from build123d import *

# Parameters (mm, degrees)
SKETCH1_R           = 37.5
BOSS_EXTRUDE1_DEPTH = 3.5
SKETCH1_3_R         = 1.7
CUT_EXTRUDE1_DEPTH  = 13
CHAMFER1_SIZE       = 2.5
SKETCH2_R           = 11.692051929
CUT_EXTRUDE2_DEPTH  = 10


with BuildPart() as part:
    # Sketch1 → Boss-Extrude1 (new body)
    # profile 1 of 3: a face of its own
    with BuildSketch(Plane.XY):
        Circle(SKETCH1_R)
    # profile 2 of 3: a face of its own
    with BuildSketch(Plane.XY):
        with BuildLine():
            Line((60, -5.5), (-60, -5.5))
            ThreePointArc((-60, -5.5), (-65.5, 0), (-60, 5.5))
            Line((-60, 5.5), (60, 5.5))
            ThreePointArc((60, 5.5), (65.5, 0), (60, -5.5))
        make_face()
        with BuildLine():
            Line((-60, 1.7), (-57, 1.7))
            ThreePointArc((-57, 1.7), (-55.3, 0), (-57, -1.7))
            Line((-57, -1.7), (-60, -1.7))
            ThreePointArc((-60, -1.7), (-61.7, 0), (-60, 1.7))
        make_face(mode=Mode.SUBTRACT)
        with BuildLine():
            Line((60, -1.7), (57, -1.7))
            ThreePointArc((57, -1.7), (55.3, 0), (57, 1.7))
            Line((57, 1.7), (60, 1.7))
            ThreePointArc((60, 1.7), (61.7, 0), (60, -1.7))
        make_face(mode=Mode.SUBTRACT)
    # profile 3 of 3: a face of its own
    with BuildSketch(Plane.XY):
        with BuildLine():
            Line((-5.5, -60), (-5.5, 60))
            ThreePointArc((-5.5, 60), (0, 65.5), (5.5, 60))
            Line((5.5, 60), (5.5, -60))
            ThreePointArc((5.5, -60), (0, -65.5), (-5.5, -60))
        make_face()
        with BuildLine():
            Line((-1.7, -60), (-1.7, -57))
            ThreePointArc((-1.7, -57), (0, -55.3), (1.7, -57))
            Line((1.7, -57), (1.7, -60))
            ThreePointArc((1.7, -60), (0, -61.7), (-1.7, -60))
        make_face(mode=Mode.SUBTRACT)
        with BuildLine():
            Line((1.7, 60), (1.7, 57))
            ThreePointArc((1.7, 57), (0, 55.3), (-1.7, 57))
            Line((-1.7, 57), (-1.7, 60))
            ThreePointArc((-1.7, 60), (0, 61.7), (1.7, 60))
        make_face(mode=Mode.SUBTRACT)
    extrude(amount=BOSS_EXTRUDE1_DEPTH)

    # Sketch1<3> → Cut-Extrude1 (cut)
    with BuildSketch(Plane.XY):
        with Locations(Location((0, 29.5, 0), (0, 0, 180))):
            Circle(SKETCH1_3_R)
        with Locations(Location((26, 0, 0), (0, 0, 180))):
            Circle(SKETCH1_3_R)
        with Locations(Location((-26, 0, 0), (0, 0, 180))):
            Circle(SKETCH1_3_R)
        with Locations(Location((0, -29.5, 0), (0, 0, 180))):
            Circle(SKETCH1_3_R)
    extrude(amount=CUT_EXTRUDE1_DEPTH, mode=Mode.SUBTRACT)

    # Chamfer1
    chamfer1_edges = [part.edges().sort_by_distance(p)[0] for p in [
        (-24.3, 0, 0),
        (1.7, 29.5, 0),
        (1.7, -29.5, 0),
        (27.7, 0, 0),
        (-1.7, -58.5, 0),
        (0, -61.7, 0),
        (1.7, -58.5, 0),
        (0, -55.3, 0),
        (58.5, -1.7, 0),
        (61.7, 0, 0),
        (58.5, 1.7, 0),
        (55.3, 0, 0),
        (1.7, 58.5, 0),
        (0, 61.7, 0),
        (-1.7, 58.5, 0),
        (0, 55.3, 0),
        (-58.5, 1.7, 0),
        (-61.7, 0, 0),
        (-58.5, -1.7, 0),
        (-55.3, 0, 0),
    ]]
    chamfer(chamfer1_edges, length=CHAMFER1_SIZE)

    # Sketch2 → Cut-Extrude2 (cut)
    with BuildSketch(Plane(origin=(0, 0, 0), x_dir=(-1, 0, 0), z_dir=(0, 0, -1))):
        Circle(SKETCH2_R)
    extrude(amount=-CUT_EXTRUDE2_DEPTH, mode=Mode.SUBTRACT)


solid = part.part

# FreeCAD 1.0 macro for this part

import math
import FreeCAD as App
import Part
import Sketcher

V = App.Vector


def edges_at(feature, points):
    """Names of the edges that pass closest to the given points."""
    edges = feature.Shape.Edges
    near = lambda p: min(range(len(edges)), key=lambda i: edges[i].distToShape(Part.Vertex(*p))[0])
    return sorted({f"Edge{near(p) + 1}" for p in points})

doc = App.newDocument("Part")
body = doc.addObject("PartDesign::Body", "Body")

# Sketch on XY plane
sketch1 = body.newObject("Sketcher::SketchObject", "Sketch")
sketch1.AttachmentSupport = (doc.getObject("XY_Plane"), [""])
sketch1.MapMode = "FlatFace"
sketch1.addGeometry([
    Part.ArcOfCircle(Part.Circle(V(60, 0, 0), V(0, 0, 1), 5.5), math.radians(-90), math.radians(90)),  # 0
    Part.LineSegment(V(60, 5.5, 0), V(37.094474, 5.5, 0)),  # 1
    Part.ArcOfCircle(Part.Circle(V(0, 0, 0), V(0, 0, 1), 37.5), math.radians(8.433804), math.radians(81.566196)),  # 2
    Part.LineSegment(V(5.5, 37.094474, 0), V(5.5, 60, 0)),  # 3
    Part.ArcOfCircle(Part.Circle(V(0, 60, 0), V(0, 0, 1), 5.5), math.radians(0), math.radians(180)),  # 4
    Part.LineSegment(V(-5.5, 60, 0), V(-5.5, 37.094474, 0)),  # 5
    Part.ArcOfCircle(Part.Circle(V(0, 0, 0), V(0, 0, 1), 37.5), math.radians(98.433804), math.radians(171.566196)),  # 6
    Part.LineSegment(V(-37.094474, 5.5, 0), V(-60, 5.5, 0)),  # 7
    Part.ArcOfCircle(Part.Circle(V(-60, 0, 0), V(0, 0, 1), 5.5), math.radians(90), math.radians(270)),  # 8
    Part.LineSegment(V(-60, -5.5, 0), V(-37.094474, -5.5, 0)),  # 9
    Part.ArcOfCircle(Part.Circle(V(0, 0, 0), V(0, 0, 1), 37.5), math.radians(-171.566196), math.radians(-98.433804)),  # 10
    Part.LineSegment(V(-5.5, -37.094474, 0), V(-5.5, -60, 0)),  # 11
    Part.ArcOfCircle(Part.Circle(V(0, -60, 0), V(0, 0, 1), 5.5), math.radians(180), math.radians(360)),  # 12
    Part.LineSegment(V(5.5, -60, 0), V(5.5, -37.094474, 0)),  # 13
    Part.ArcOfCircle(Part.Circle(V(0, 0, 0), V(0, 0, 1), 37.5), math.radians(-81.566196), math.radians(-8.433804)),  # 14
    Part.LineSegment(V(37.094474, -5.5, 0), V(60, -5.5, 0)),  # 15
    Part.ArcOfCircle(Part.Circle(V(57, 0, 0), V(0, 0, 1), 1.7), math.radians(90), math.radians(270)),  # 16
    Part.LineSegment(V(57, 1.7, 0), V(60, 1.7, 0)),  # 17
    Part.ArcOfCircle(Part.Circle(V(60, 0, 0), V(0, 0, 1), 1.7), math.radians(-90), math.radians(90)),  # 18
    Part.LineSegment(V(60, -1.7, 0), V(57, -1.7, 0)),  # 19
    Part.LineSegment(V(1.7, -57, 0), V(1.7, -60, 0)),  # 20
    Part.ArcOfCircle(Part.Circle(V(0, -60, 0), V(0, 0, 1), 1.7), math.radians(180), math.radians(360)),  # 21
    Part.LineSegment(V(-1.7, -60, 0), V(-1.7, -57, 0)),  # 22
    Part.ArcOfCircle(Part.Circle(V(0, -57, 0), V(0, 0, 1), 1.7), math.radians(0), math.radians(180)),  # 23
    Part.LineSegment(V(-1.7, 57, 0), V(-1.7, 60, 0)),  # 24
    Part.ArcOfCircle(Part.Circle(V(0, 60, 0), V(0, 0, 1), 1.7), math.radians(0), math.radians(180)),  # 25
    Part.LineSegment(V(1.7, 60, 0), V(1.7, 57, 0)),  # 26
    Part.ArcOfCircle(Part.Circle(V(0, 57, 0), V(0, 0, 1), 1.7), math.radians(180), math.radians(360)),  # 27
    Part.LineSegment(V(-57, -1.7, 0), V(-60, -1.7, 0)),  # 28
    Part.ArcOfCircle(Part.Circle(V(-60, 0, 0), V(0, 0, 1), 1.7), math.radians(90), math.radians(270)),  # 29
    Part.LineSegment(V(-60, 1.7, 0), V(-57, 1.7, 0)),  # 30
    Part.ArcOfCircle(Part.Circle(V(-57, 0, 0), V(0, 0, 1), 1.7), math.radians(-90), math.radians(90)),  # 31
], False)
sketch1.addConstraint([
    Sketcher.Constraint("Tangent", 0, 2, 1, 1),
    Sketcher.Constraint("Coincident", 1, 2, 2, 1),
    Sketcher.Constraint("Coincident", 2, 2, 3, 1),
    Sketcher.Constraint("Tangent", 3, 2, 4, 1),
    Sketcher.Constraint("Tangent", 4, 2, 5, 1),
    Sketcher.Constraint("Coincident", 5, 2, 6, 1),
    Sketcher.Constraint("Coincident", 6, 2, 7, 1),
    Sketcher.Constraint("Tangent", 7, 2, 8, 1),
    Sketcher.Constraint("Tangent", 8, 2, 9, 1),
    Sketcher.Constraint("Coincident", 9, 2, 10, 1),
    Sketcher.Constraint("Coincident", 10, 2, 11, 1),
    Sketcher.Constraint("Tangent", 11, 2, 12, 1),
    Sketcher.Constraint("Tangent", 12, 2, 13, 1),
    Sketcher.Constraint("Coincident", 13, 2, 14, 1),
    Sketcher.Constraint("Coincident", 14, 2, 15, 1),
    Sketcher.Constraint("Tangent", 15, 2, 0, 1),
    Sketcher.Constraint("Tangent", 16, 1, 17, 1),
    Sketcher.Constraint("Tangent", 17, 2, 18, 2),
    Sketcher.Constraint("Tangent", 18, 1, 19, 1),
    Sketcher.Constraint("Tangent", 19, 2, 16, 2),
    Sketcher.Constraint("Tangent", 20, 2, 21, 2),
    Sketcher.Constraint("Tangent", 21, 1, 22, 1),
    Sketcher.Constraint("Tangent", 22, 2, 23, 2),
    Sketcher.Constraint("Tangent", 23, 1, 20, 1),
    Sketcher.Constraint("Tangent", 24, 2, 25, 2),
    Sketcher.Constraint("Tangent", 25, 1, 26, 1),
    Sketcher.Constraint("Tangent", 26, 2, 27, 2),
    Sketcher.Constraint("Tangent", 27, 1, 24, 1),
    Sketcher.Constraint("Tangent", 28, 2, 29, 2),
    Sketcher.Constraint("Tangent", 29, 1, 30, 1),
    Sketcher.Constraint("Tangent", 30, 2, 31, 2),
    Sketcher.Constraint("Tangent", 31, 1, 28, 1),
    Sketcher.Constraint("Horizontal", 1),
    Sketcher.Constraint("Vertical", 3),
    Sketcher.Constraint("Vertical", 5),
    Sketcher.Constraint("Horizontal", 7),
    Sketcher.Constraint("Horizontal", 9),
    Sketcher.Constraint("Vertical", 11),
    Sketcher.Constraint("Vertical", 13),
    Sketcher.Constraint("Horizontal", 15),
    Sketcher.Constraint("Horizontal", 17),
    Sketcher.Constraint("Horizontal", 19),
    Sketcher.Constraint("Vertical", 20),
    Sketcher.Constraint("Vertical", 22),
    Sketcher.Constraint("Vertical", 24),
    Sketcher.Constraint("Vertical", 26),
    Sketcher.Constraint("Horizontal", 28),
    Sketcher.Constraint("Horizontal", 30),
    Sketcher.Constraint("Coincident", 2, 3, -1, 1),
    Sketcher.Constraint("Coincident", 6, 3, -1, 1),
    Sketcher.Constraint("Coincident", 10, 3, -1, 1),
    Sketcher.Constraint("Coincident", 14, 3, -1, 1),
    Sketcher.Constraint("Coincident", 18, 3, 0, 3),
    Sketcher.Constraint("Coincident", 21, 3, 12, 3),
    Sketcher.Constraint("Coincident", 25, 3, 4, 3),
    Sketcher.Constraint("Coincident", 29, 3, 8, 3),
    Sketcher.Constraint("Equal", 0, 4),
    Sketcher.Constraint("Equal", 2, 6),
    Sketcher.Constraint("Equal", 4, 8),
    Sketcher.Constraint("Equal", 6, 10),
    Sketcher.Constraint("Equal", 8, 12),
    Sketcher.Constraint("Equal", 10, 14),
    Sketcher.Constraint("Equal", 18, 21),
    Sketcher.Constraint("Equal", 23, 25),
    Sketcher.Constraint("Equal", 27, 29),
    Sketcher.Constraint("Symmetric", 0, 3, 8, 3, -1, 1),
    Sketcher.Constraint("Symmetric", 4, 3, 12, 3, -1, 1),
    Sketcher.Constraint("Symmetric", 16, 3, 31, 3, -2),
    Sketcher.Constraint("Symmetric", 23, 3, 27, 3, -1),
    Sketcher.Constraint("Equal", 15, 3),
    Sketcher.Constraint("Equal", 30, 20),
    Sketcher.Constraint("Radius", 0, 5.5),
    Sketcher.Constraint("Radius", 2, 37.5),
    Sketcher.Constraint("Radius", 16, 1.7),
    Sketcher.Constraint("DistanceX", 17, 1, 17, 2, 3.0),
    Sketcher.Constraint("DistanceX", -1, 1, 0, 3, 60.0),
])
pad1 = body.newObject("PartDesign::Pad", "Pad")
pad1.Profile = sketch1
pad1.Length = 3.5

# Sketch on XY plane
sketch2 = body.newObject("Sketcher::SketchObject", "Sketch001")
sketch2.AttachmentSupport = (doc.getObject("XY_Plane"), [""])
sketch2.MapMode = "FlatFace"
sketch2.addGeometry([
    Part.Circle(V(0, 29.5, 0), V(0, 0, 1), 1.7),
    Part.Circle(V(26, 0, 0), V(0, 0, 1), 1.7),
    Part.Circle(V(-26, 0, 0), V(0, 0, 1), 1.7),
    Part.Circle(V(0, -29.5, 0), V(0, 0, 1), 1.7),
], False)
sketch2.addConstraint([
    Sketcher.Constraint("Equal", 0, 1),
    Sketcher.Constraint("Equal", 1, 2),
    Sketcher.Constraint("Equal", 2, 3),
    Sketcher.Constraint("Symmetric", 1, 3, 2, 3, -1, 1),
    Sketcher.Constraint("Symmetric", 0, 3, 3, 3, -1, 1),
    Sketcher.Constraint("PointOnObject", 0, 3, -2),
    Sketcher.Constraint("PointOnObject", 1, 3, -1),
    Sketcher.Constraint("Diameter", 0, 3.4),
    Sketcher.Constraint("DistanceX", -1, 1, 1, 3, 26.0),
    Sketcher.Constraint("DistanceY", 3, 3, 0, 3, 59.0),
])
pocket1 = body.newObject("PartDesign::Pocket", "Pocket")
pocket1.Profile = sketch2
pocket1.Length = 13
pocket1.Reversed = True
doc.recompute()

chamfer = body.newObject("PartDesign::Chamfer", "Chamfer")
chamfer.Base = (pocket1, edges_at(pocket1, [
    (-24.3, 0, 0),
    (1.7, 29.5, 0),
    (1.7, -29.5, 0),
    (27.7, 0, 0),
    (-1.7, -58.5, 0),
    (0, -61.7, 0),
    (1.7, -58.5, 0),
    (0, -55.3, 0),
    (58.5, -1.7, 0),
    (61.7, 0, 0),
    (58.5, 1.7, 0),
    (55.3, 0, 0),
    (1.7, 58.5, 0),
    (0, 61.7, 0),
    (-1.7, 58.5, 0),
    (0, 55.3, 0),
    (-58.5, 1.7, 0),
    (-61.7, 0, 0),
    (-58.5, -1.7, 0),
    (-55.3, 0, 0),
]))
chamfer.Size = 2.5

# Sketch on XY plane
sketch3 = body.newObject("Sketcher::SketchObject", "Sketch002")
sketch3.AttachmentSupport = (doc.getObject("XY_Plane"), [""])
sketch3.MapMode = "FlatFace"
sketch3.addGeometry(Part.Circle(V(0, 0, 0), V(0, 0, 1), 11.692052), False)
sketch3.addConstraint([
    Sketcher.Constraint("Coincident", 0, 3, -1, 1),
    Sketcher.Constraint("Diameter", 0, 23.384104),
])
pocket2 = body.newObject("PartDesign::Pocket", "Pocket001")
pocket2.Profile = sketch3
pocket2.Length = 10
pocket2.Reversed = True

doc.recompute()
